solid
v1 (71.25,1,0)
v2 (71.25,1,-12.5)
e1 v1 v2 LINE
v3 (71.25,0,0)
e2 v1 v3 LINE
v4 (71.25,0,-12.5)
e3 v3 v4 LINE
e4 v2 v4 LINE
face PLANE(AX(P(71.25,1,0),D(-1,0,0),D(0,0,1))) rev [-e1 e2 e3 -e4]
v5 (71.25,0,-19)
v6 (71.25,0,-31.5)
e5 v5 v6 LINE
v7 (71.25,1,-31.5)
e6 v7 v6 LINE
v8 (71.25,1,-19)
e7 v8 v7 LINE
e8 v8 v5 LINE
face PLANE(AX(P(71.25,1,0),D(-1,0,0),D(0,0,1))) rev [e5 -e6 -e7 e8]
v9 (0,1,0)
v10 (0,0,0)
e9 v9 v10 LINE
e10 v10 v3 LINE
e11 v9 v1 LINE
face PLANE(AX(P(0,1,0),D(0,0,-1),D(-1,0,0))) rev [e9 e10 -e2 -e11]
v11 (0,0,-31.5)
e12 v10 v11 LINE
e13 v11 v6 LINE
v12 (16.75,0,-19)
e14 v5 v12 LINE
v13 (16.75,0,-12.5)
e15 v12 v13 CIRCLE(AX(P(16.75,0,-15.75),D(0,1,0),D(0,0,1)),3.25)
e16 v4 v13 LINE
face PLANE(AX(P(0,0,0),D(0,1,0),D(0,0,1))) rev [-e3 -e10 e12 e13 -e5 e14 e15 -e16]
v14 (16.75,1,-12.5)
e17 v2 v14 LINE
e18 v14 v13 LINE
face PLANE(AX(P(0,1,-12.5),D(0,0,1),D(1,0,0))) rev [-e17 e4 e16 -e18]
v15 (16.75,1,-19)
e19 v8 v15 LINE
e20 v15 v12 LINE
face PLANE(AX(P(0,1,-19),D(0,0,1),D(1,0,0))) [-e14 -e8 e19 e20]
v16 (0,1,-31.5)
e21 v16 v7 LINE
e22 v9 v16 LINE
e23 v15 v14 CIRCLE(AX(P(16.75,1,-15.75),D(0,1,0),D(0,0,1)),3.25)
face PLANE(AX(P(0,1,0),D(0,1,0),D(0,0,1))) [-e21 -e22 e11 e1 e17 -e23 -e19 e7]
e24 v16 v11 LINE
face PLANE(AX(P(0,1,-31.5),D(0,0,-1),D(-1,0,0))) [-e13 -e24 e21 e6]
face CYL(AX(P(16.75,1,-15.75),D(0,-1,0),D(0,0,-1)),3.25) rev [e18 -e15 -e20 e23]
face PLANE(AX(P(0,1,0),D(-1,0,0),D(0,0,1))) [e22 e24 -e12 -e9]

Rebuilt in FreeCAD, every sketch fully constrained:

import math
import FreeCAD as App
import Part
import Sketcher

doc = App.newDocument("Part")
params = doc.addObject("Spreadsheet::Sheet", "Params")
for row, (alias, value) in enumerate([
    ("sketch1_radius", "3.25 mm"),
    ("sketch1_width", "54.5 mm"),
    ("sketch1_height", "31.5 mm"),
    ("sketch1_width2", "71.25 mm"),
    ("pad1_length", "1 mm"),
], start=1):
    params.set(f"A{row}", alias)
    params.set(f"B{row}", "=" + value)
    params.setAlias(f"B{row}", alias)

body = doc.addObject("PartDesign::Body", "Body")

# Sketch on XZ plane
sketch1 = doc.addObject("Sketcher::SketchObject", "Sketch")
body.addObject(sketch1)
sketch1.AttachmentSupport = (doc.XZ_Plane, [""])
sketch1.MapMode = "FlatFace"
sketch1.addGeometry([
    Part.LineSegment(App.Vector(0, -31.5, 0), App.Vector(0, 0, 0)),  # 0
    Part.LineSegment(App.Vector(0, 0, 0), App.Vector(71.25, 0, 0)),  # 1
    Part.LineSegment(App.Vector(71.25, 0, 0), App.Vector(71.25, -12.5, 0)),  # 2
    Part.LineSegment(App.Vector(71.25, -12.5, 0), App.Vector(16.75, -12.5, 0)),  # 3
    Part.ArcOfCircle(Part.Circle(App.Vector(16.75, -15.75, 0), App.Vector(0, 0, 1), 3.25), math.radians(90), math.radians(270)),  # 4
    Part.LineSegment(App.Vector(16.75, -19, 0), App.Vector(71.25, -19, 0)),  # 5
    Part.LineSegment(App.Vector(71.25, -19, 0), App.Vector(71.25, -31.5, 0)),  # 6
    Part.LineSegment(App.Vector(71.25, -31.5, 0), App.Vector(0, -31.5, 0)),  # 7
], False)
sketch1.addConstraint([
    Sketcher.Constraint("Coincident", 0, 2, 1, 1),
    Sketcher.Constraint("Coincident", 1, 2, 2, 1),
    Sketcher.Constraint("Coincident", 2, 2, 3, 1),
    Sketcher.Constraint("Tangent", 3, 2, 4, 1),
    Sketcher.Constraint("Tangent", 4, 2, 5, 1),
    Sketcher.Constraint("Coincident", 5, 2, 6, 1),
    Sketcher.Constraint("Coincident", 6, 2, 7, 1),
    Sketcher.Constraint("Coincident", 7, 2, 0, 1),
    Sketcher.Constraint("Vertical", 0),
    Sketcher.Constraint("Horizontal", 1),
    Sketcher.Constraint("Vertical", 2),
    Sketcher.Constraint("Horizontal", 3),
    Sketcher.Constraint("Horizontal", 5),
    Sketcher.Constraint("Vertical", 6),
    Sketcher.Constraint("Horizontal", 7),
    Sketcher.Constraint("Coincident", 0, 2, -1, 1),
    Sketcher.Constraint("Vertical", 2, 2, 5, 2),
    Sketcher.Constraint("Equal", 2, 6),
    Sketcher.Constraint("Radius", 4, 3.25),
    Sketcher.Constraint("DistanceX", 3, 2, 3, 1, 54.5),
    Sketcher.Constraint("DistanceY", 0, 1, 0, 2, 31.5),
    Sketcher.Constraint("DistanceX", 1, 1, 1, 2, 71.25),
])
sketch1.setExpression("Constraints[18]", "Params.sketch1_radius")
sketch1.setExpression("Constraints[19]", "Params.sketch1_width")
sketch1.setExpression("Constraints[20]", "Params.sketch1_height")
sketch1.setExpression("Constraints[21]", "Params.sketch1_width2")
pad1 = doc.addObject("PartDesign::Pad", "Pad")
body.addObject(pad1)
pad1.Profile = sketch1
pad1.setExpression("Length", "Params.pad1_length")
pad1.Reversed = True

doc.recompute()
